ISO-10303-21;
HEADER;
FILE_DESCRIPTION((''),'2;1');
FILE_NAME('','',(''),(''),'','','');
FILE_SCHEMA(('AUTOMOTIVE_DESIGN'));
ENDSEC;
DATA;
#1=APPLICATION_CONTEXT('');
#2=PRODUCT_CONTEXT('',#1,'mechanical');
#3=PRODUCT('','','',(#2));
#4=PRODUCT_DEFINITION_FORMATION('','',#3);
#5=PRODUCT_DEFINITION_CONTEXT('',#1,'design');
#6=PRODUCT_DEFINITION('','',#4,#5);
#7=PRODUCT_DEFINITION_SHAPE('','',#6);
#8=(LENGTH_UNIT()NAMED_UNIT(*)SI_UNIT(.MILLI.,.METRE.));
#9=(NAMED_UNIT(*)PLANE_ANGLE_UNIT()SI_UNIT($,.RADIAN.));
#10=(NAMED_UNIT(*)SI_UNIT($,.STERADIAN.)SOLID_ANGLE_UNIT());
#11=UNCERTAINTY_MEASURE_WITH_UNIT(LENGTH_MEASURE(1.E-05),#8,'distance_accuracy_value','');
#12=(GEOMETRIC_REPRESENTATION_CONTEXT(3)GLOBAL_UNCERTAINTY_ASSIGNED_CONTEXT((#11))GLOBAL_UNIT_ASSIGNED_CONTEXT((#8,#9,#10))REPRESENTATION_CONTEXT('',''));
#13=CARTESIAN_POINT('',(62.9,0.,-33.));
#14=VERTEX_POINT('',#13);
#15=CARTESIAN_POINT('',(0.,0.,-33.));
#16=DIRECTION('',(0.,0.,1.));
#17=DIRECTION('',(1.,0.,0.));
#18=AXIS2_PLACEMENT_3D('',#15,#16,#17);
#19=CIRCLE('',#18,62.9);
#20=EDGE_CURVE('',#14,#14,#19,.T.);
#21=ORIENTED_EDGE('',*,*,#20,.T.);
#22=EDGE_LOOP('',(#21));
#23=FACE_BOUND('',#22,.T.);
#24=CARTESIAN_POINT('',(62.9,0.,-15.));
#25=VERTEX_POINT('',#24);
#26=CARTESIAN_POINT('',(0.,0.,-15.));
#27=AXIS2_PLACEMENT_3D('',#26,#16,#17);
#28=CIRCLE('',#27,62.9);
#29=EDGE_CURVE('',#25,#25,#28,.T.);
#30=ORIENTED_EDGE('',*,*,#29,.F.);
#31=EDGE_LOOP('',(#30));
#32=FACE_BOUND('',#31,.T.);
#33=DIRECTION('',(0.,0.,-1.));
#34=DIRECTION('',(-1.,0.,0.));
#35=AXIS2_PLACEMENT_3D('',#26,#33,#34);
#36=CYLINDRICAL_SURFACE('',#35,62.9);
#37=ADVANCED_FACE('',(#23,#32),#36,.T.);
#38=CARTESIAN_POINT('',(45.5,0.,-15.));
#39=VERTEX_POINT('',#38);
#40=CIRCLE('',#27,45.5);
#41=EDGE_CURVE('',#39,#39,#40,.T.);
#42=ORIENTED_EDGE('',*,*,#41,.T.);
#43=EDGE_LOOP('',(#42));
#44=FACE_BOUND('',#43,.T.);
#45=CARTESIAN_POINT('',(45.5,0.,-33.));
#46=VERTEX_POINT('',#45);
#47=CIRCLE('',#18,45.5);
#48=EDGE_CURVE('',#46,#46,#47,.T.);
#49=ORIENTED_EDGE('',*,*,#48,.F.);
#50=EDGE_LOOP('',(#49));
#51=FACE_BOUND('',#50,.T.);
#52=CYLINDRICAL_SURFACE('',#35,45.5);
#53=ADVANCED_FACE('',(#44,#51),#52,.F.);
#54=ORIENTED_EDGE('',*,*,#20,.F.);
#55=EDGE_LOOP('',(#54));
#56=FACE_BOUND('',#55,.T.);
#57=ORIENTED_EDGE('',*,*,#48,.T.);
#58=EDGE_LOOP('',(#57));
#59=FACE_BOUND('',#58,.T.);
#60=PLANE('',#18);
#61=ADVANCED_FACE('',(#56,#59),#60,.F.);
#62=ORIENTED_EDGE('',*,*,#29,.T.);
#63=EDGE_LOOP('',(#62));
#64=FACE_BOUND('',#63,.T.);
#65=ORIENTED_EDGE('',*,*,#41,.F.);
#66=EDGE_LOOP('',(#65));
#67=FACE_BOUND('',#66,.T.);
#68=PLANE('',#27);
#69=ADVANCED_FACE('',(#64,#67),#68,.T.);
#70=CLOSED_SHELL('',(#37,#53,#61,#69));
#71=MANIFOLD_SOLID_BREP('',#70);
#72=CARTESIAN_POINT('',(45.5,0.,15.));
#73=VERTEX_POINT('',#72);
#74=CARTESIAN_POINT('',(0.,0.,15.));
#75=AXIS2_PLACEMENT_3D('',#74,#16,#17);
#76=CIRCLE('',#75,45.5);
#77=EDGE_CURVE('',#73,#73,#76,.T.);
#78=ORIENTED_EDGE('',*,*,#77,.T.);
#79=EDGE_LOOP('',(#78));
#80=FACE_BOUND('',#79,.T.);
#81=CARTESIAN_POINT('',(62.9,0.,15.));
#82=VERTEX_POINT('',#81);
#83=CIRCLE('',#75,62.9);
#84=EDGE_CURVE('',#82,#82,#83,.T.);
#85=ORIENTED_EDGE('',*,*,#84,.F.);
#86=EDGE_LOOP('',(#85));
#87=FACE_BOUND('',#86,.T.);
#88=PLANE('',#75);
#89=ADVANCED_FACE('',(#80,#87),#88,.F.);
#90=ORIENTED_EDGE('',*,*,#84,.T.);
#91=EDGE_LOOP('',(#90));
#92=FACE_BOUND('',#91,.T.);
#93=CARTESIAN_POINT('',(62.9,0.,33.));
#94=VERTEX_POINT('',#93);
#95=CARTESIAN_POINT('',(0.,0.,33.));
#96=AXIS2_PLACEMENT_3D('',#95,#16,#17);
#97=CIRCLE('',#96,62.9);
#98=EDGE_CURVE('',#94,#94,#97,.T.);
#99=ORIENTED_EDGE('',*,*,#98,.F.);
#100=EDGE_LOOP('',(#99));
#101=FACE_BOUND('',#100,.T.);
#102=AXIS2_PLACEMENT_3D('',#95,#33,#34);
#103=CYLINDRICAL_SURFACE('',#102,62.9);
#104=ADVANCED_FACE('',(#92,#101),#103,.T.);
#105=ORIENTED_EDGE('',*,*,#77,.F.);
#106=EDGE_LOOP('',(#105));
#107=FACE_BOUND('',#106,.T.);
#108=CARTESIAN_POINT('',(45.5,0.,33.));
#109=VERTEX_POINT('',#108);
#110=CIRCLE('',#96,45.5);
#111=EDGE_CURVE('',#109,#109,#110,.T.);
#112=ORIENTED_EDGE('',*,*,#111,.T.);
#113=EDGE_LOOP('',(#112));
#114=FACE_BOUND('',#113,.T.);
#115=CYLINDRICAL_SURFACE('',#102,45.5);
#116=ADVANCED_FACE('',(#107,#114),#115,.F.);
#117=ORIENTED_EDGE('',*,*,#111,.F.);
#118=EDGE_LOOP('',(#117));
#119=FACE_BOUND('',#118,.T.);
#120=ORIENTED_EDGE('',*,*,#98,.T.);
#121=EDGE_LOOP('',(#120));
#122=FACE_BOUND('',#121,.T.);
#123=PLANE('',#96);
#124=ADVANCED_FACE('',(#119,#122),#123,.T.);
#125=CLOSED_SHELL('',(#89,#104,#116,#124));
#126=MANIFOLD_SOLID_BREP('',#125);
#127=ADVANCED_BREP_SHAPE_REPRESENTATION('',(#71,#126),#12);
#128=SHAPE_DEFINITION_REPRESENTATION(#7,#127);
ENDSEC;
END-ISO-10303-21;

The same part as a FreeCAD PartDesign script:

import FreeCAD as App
import Part
import Sketcher

V = App.Vector
Q = App.Units.Quantity

doc = App.newDocument("Part")
body = doc.addObject("PartDesign::Body", "Body")

sketch1 = doc.addObject("Sketcher::SketchObject", "Sketch")
body.addObject(sketch1)
sketch1.AttachmentSupport = (doc.XY_Plane, [""])
sketch1.MapMode = "FlatFace"
sketch1.AttachmentOffset = App.Placement(V(0, 0, 15), App.Rotation())
sketch1.addGeometry([
    Part.Circle(V(0, 0, 0), V(0, 0, 1), 63),
    Part.Circle(V(0, 0, 0), V(0, 0, 1), 46),
], False)
sketch1.addConstraint([
    Sketcher.Constraint("Coincident", 0, 3, -1, 1),
    Sketcher.Constraint("Coincident", 1, 3, -1, 1),
    Sketcher.Constraint("Diameter", 1, Q("91 mm")),
    Sketcher.Constraint("Diameter", 0, Q("125.8 mm")),
])
pad1 = doc.addObject("PartDesign::Pad", "Pad")
body.addObject(pad1)
pad1.Profile = sketch1
pad1.Length = 18
body2 = doc.addObject("PartDesign::Body", "Body001")

sketch2 = doc.addObject("Sketcher::SketchObject", "Sketch001")
body2.addObject(sketch2)
sketch2.AttachmentSupport = (doc.getObject("XY_Plane001"), [""])
sketch2.MapMode = "FlatFace"
sketch2.AttachmentOffset = App.Placement(V(0, 0, -33), App.Rotation())
sketch2.addGeometry([
    Part.Circle(V(0, 0, 0), V(0, 0, 1), 63),
    Part.Circle(V(0, 0, 0), V(0, 0, 1), 46),
], False)
sketch2.addConstraint([
    Sketcher.Constraint("Coincident", 0, 3, -1, 1),
    Sketcher.Constraint("Coincident", 1, 3, -1, 1),
    Sketcher.Constraint("Diameter", 1, Q("91 mm")),
    Sketcher.Constraint("Diameter", 0, Q("125.8 mm")),
])
pad2 = doc.addObject("PartDesign::Pad", "Pad001")
body2.addObject(pad2)
pad2.Profile = sketch2
pad2.Length = 18

doc.recompute()
